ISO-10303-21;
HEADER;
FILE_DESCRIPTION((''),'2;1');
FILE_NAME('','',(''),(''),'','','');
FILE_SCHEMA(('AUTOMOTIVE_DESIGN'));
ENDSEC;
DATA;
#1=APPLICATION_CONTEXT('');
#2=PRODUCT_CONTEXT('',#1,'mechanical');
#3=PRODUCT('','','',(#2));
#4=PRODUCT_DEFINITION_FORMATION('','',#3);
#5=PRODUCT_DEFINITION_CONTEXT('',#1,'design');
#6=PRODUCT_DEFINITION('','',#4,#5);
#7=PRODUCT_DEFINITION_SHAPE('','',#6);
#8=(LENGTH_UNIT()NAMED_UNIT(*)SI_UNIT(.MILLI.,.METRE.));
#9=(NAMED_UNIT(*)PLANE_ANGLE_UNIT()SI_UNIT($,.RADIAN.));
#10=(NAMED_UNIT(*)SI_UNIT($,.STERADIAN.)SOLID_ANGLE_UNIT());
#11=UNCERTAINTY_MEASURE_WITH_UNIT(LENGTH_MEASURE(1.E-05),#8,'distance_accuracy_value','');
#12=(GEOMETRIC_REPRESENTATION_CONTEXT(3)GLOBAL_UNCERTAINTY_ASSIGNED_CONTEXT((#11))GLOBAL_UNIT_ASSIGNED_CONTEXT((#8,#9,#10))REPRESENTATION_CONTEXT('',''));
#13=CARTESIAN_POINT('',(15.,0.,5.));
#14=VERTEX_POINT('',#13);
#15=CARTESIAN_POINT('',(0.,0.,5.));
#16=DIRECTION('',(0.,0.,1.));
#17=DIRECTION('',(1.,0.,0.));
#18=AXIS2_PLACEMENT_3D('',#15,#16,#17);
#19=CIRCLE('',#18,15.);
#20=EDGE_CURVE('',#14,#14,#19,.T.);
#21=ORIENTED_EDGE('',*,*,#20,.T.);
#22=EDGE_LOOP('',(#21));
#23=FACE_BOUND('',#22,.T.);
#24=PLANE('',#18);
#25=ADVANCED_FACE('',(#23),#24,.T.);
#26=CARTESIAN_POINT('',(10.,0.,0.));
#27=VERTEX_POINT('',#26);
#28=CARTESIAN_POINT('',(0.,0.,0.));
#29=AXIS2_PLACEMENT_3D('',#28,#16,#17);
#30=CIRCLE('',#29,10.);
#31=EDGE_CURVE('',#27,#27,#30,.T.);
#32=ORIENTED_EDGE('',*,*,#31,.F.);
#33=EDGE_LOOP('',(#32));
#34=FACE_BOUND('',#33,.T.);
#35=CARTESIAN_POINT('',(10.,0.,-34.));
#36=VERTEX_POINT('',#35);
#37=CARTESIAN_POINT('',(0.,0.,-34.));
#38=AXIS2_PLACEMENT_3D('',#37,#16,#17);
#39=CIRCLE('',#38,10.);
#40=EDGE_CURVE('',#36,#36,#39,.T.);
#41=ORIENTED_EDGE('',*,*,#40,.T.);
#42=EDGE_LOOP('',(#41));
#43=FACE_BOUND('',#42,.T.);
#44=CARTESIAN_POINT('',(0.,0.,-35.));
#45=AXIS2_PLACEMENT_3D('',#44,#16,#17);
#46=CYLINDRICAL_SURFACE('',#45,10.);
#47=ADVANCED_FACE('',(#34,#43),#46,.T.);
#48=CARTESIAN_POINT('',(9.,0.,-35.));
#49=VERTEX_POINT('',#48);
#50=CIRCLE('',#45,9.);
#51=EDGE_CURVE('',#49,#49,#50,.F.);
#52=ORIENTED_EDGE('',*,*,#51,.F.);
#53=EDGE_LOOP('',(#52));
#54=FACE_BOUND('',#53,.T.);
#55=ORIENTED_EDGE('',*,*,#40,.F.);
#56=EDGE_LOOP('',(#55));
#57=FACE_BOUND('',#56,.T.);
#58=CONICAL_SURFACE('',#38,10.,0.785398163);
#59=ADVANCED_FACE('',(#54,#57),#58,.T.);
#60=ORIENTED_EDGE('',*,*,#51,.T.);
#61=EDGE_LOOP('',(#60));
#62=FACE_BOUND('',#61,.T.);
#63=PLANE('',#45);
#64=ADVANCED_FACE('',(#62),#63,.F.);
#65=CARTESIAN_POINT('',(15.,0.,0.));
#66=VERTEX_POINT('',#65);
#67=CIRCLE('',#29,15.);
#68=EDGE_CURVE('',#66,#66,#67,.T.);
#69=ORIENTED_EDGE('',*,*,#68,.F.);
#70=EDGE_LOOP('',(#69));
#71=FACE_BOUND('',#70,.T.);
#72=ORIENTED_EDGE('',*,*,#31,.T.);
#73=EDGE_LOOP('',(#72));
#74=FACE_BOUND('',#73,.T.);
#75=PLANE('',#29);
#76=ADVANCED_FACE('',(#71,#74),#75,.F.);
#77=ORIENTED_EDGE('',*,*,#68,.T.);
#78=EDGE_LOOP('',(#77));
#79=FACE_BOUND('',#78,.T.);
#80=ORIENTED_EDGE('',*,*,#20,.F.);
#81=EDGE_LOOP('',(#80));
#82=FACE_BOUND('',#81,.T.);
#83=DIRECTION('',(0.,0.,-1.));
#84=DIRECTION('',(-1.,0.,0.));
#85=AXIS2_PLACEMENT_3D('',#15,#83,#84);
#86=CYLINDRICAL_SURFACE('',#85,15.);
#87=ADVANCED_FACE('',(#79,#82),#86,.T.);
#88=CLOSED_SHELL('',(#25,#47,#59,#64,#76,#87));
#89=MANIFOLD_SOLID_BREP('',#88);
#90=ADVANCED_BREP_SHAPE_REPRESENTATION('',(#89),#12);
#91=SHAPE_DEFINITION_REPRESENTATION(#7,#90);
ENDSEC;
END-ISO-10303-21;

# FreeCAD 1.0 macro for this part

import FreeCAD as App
import Part
import Sketcher


def edges_at(feature, points):
    """Names of the edges that pass closest to the given points."""
    edges = feature.Shape.Edges
    near = lambda p: min(range(len(edges)), key=lambda i: edges[i].distToShape(Part.Vertex(*p))[0])
    return sorted({f"Edge{near(p) + 1}" for p in points})

doc = App.newDocument("Part")
body = doc.addObject("PartDesign::Body", "Body")

# Sketch on XY plane
sketch1 = body.newObject("Sketcher::SketchObject", "Sketch")
sketch1.AttachmentSupport = (doc.getObject("XY_Plane"), [""])
sketch1.MapMode = "FlatFace"
sketch1.addGeometry(Part.Circle(App.Vector(0, 0, 0), App.Vector(0, 0, 1), 10), False)
sketch1.addConstraint([
    Sketcher.Constraint("Coincident", 0, 3, -1, 1),
    Sketcher.Constraint("Diameter", 0, 20.0),
])
pad1 = body.newObject("PartDesign::Pad", "Pad")
pad1.Profile = sketch1
pad1.Length = 35
pad1.Reversed = True

# Sketch on XY plane
sketch2 = body.newObject("Sketcher::SketchObject", "Sketch001")
sketch2.AttachmentSupport = (doc.getObject("XY_Plane"), [""])
sketch2.MapMode = "FlatFace"
sketch2.addGeometry(Part.Circle(App.Vector(0, 0, 0), App.Vector(0, 0, 1), 15), False)
sketch2.addConstraint([
    Sketcher.Constraint("Coincident", 0, 3, -1, 1),
    Sketcher.Constraint("Diameter", 0, 30.0),
])
pad2 = body.newObject("PartDesign::Pad", "Pad001")
pad2.Profile = sketch2
pad2.Length = 5
doc.recompute()

chamfer = body.newObject("PartDesign::Chamfer", "Chamfer")
chamfer.Base = (pad2, edges_at(pad2, [(-10, 0, -35)]))
chamfer.Size = 1

doc.recompute()
